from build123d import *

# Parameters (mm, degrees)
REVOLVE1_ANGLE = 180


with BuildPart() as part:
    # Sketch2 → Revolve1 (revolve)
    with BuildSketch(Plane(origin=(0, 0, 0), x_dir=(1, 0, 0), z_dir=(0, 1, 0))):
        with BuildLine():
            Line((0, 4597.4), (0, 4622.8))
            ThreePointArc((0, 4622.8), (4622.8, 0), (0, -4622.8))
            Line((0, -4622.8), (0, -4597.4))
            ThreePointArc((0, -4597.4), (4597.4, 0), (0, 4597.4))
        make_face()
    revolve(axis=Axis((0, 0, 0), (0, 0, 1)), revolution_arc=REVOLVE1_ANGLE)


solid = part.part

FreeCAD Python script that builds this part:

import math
import FreeCAD as App
import Part
import Sketcher
Q = App.Units.Quantity

doc = App.newDocument("Part")
body = doc.addObject("PartDesign::Body", "Body")

# Sketch on XZ plane
sketch1 = body.newObject("Sketcher::SketchObject", "Sketch")
sketch1.AttachmentSupport = (doc.getObject("XZ_Plane"), [""])
sketch1.MapMode = "FlatFace"
sketch1.addGeometry(Part.LineSegment(App.Vector(0, -4622.8, 0), App.Vector(0, -4597.4, 0)), False)
sketch1.addGeometry(Part.ArcOfCircle(Part.Circle(App.Vector(0, 0, 0), App.Vector(0, 0, 1), 4597.4), math.radians(-90), math.radians(90)), False)
sketch1.addGeometry(Part.LineSegment(App.Vector(0, 4597.4, 0), App.Vector(0, 4622.8, 0)), False)
sketch1.addGeometry(Part.ArcOfCircle(Part.Circle(App.Vector(0, 0, 0), App.Vector(0, 0, 1), 4622.8), math.radians(-90), math.radians(90)), False)
sketch1.addConstraint(Sketcher.Constraint("Coincident", 0, 2, 1, 1))
sketch1.addConstraint(Sketcher.Constraint("Coincident", 1, 2, 2, 1))
sketch1.addConstraint(Sketcher.Constraint("Coincident", 2, 2, 3, 2))
sketch1.addConstraint(Sketcher.Constraint("Coincident", 3, 1, 0, 1))
sketch1.addConstraint(Sketcher.Constraint("Vertical", 0))
sketch1.addConstraint(Sketcher.Constraint("Vertical", 2))
sketch1.addConstraint(Sketcher.Constraint("Coincident", 1, 3, -1, 1))
sketch1.addConstraint(Sketcher.Constraint("Coincident", 3, 3, -1, 1))
sketch1.addConstraint(Sketcher.Constraint("PointOnObject", 0, 2, -2))
sketch1.addConstraint(Sketcher.Constraint("PointOnObject", 2, 2, -2))
sketch1.addConstraint(Sketcher.Constraint("Radius", 1, Q("181 in")))
sketch1.addConstraint(Sketcher.Constraint("Radius", 3, Q("182 in")))
revolution = body.newObject("PartDesign::Revolution", "Revolution")
revolution.Profile = sketch1
revolution.ReferenceAxis = (sketch1, ["V_Axis"])
revolution.Angle = 180

doc.recompute()
